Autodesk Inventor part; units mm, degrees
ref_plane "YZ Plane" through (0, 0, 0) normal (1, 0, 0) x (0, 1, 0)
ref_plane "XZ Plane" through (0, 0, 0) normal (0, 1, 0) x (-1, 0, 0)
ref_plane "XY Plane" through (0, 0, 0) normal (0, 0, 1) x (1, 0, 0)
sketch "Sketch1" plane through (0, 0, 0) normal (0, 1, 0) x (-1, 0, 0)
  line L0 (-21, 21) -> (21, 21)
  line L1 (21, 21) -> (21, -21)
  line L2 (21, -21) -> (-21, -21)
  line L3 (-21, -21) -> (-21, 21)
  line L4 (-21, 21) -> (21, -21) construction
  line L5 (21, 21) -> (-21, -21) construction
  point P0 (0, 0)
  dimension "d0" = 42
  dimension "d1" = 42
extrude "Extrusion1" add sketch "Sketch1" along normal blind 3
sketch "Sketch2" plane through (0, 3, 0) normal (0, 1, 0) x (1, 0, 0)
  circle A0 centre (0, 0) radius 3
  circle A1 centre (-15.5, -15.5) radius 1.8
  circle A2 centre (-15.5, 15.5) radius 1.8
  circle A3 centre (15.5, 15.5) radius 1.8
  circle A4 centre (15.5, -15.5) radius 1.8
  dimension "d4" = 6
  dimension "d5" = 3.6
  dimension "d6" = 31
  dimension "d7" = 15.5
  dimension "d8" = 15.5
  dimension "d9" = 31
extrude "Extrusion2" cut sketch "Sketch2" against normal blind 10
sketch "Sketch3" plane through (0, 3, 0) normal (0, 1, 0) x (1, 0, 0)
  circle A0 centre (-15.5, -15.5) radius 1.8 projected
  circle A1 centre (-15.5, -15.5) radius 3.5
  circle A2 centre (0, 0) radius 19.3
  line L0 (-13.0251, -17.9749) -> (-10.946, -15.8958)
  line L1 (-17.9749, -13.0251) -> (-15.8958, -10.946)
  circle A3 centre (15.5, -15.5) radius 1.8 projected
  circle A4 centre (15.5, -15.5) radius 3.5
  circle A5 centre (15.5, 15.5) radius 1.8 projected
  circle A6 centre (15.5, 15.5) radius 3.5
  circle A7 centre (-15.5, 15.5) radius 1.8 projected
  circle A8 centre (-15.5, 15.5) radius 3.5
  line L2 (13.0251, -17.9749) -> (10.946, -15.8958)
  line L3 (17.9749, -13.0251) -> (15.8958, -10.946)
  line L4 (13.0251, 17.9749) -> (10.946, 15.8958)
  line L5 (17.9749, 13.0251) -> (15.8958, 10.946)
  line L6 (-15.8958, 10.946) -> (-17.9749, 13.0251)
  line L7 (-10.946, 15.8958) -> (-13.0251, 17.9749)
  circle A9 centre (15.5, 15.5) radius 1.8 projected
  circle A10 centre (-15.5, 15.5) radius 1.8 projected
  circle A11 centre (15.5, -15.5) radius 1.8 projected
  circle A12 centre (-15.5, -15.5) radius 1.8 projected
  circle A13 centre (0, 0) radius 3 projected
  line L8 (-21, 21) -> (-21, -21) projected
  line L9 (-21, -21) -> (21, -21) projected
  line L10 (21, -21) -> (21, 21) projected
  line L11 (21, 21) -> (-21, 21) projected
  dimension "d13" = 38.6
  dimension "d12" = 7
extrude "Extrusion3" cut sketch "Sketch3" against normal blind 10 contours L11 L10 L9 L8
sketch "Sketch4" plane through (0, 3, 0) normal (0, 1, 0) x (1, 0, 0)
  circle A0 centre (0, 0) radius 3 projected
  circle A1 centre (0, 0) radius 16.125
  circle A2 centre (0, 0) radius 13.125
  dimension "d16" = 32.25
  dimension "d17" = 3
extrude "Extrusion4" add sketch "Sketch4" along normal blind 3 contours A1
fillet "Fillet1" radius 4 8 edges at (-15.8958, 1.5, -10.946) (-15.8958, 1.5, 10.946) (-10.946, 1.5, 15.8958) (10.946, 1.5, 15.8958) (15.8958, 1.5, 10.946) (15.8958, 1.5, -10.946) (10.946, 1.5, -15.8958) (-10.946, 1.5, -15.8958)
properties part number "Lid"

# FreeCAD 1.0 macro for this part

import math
import FreeCAD as App
import Part
import Sketcher

V = App.Vector
Q = App.Units.Quantity


def edges_at(feature, points):
    """Names of the edges that pass closest to the given points."""
    edges = feature.Shape.Edges
    near = lambda p: min(range(len(edges)), key=lambda i: edges[i].distToShape(Part.Vertex(*p))[0])
    return sorted({f"Edge{near(p) + 1}" for p in points})


def add_polygon(sketch, points):
    """Adds a closed chain of lines whose ends are joined by coincident constraints."""
    first, n = sketch.GeometryCount, len(points)
    for a, b in zip(points, points[1:] + points[:1]):
        sketch.addGeometry(Part.LineSegment(App.Vector(*a, 0), App.Vector(*b, 0)), False)
    for i in range(n):
        sketch.addConstraint(Sketcher.Constraint("Coincident", first + i, 2, first + (i + 1) % n, 1))

doc = App.newDocument("Part")
body = doc.addObject("PartDesign::Body", "Body")

sketch1 = body.newObject("Sketcher::SketchObject", "Sketch")
sketch1.AttachmentSupport = (doc.getObject("XZ_Plane"), [""])
sketch1.MapMode = "FlatFace"
add_polygon(sketch1, [(-21, 21), (21, 21), (21, -21), (-21, -21)])
sketch1.addConstraint(Sketcher.Constraint("Horizontal", 0))
sketch1.addConstraint(Sketcher.Constraint("Vertical", 1))
sketch1.addConstraint(Sketcher.Constraint("Horizontal", 2))
sketch1.addConstraint(Sketcher.Constraint("Vertical", 3))
sketch1.addConstraint(Sketcher.Constraint("Symmetric", 0, 2, 2, 2, -1, 1))
sketch1.addConstraint(Sketcher.Constraint("Equal", 2, 1))
sketch1.addConstraint(Sketcher.Constraint("DistanceX", 0, 1, 0, 2, Q("42 mm")))
pad1 = body.newObject("PartDesign::Pad", "Pad")
pad1.Profile = sketch1
pad1.Length = 3
pad1.Reversed = True

sketch2 = body.newObject("Sketcher::SketchObject", "Sketch001")
sketch2.AttachmentSupport = (doc.getObject("XZ_Plane"), [""])
sketch2.MapMode = "FlatFace"
sketch2.AttachmentOffset = App.Placement(V(0, 0, -3), App.Rotation())
sketch2.addGeometry(Part.Circle(V(0, 0, 0), V(0, 0, 1), 3), False)
sketch2.addGeometry(Part.Circle(V(-15.5, 15.5, 0), V(0, 0, 1), 1.8), False)
sketch2.addGeometry(Part.Circle(V(-15.5, -15.5, 0), V(0, 0, 1), 1.8), False)
sketch2.addGeometry(Part.Circle(V(15.5, -15.5, 0), V(0, 0, 1), 1.8), False)
sketch2.addGeometry(Part.Circle(V(15.5, 15.5, 0), V(0, 0, 1), 1.8), False)
sketch2.addConstraint(Sketcher.Constraint("Coincident", 0, 3, -1, 1))
sketch2.addConstraint(Sketcher.Constraint("Equal", 1, 2))
sketch2.addConstraint(Sketcher.Constraint("Equal", 2, 3))
sketch2.addConstraint(Sketcher.Constraint("Equal", 3, 4))
sketch2.addConstraint(Sketcher.Constraint("Symmetric", 1, 3, 3, 3, -1, 1))
sketch2.addConstraint(Sketcher.Constraint("Symmetric", 2, 3, 4, 3, -1, 1))
sketch2.addConstraint(Sketcher.Constraint("Symmetric", 2, 3, 3, 3, -2))
sketch2.addConstraint(Sketcher.Constraint("Diameter", 0, Q("6 mm")))
sketch2.addConstraint(Sketcher.Constraint("Diameter", 1, Q("3.6 mm")))
sketch2.addConstraint(Sketcher.Constraint("DistanceY", 2, 3, 1, 3, Q("31 mm")))
sketch2.addConstraint(Sketcher.Constraint("DistanceX", 2, 3, 3, 3, Q("31 mm")))
pocket1 = body.newObject("PartDesign::Pocket", "Pocket")
pocket1.Profile = sketch2
pocket1.Length = 10
pocket1.Reversed = True

sketch3 = body.newObject("Sketcher::SketchObject", "Sketch002")
sketch3.AttachmentSupport = (doc.getObject("XZ_Plane"), [""])
sketch3.MapMode = "FlatFace"
sketch3.AttachmentOffset = App.Placement(V(0, 0, -3), App.Rotation())
add_polygon(sketch3, [(21, -21), (-21, -21), (-21, 21), (21, 21)])
sketch3.addGeometry(Part.ArcOfCircle(Part.Circle(V(-15.5, 15.5, 0), V(0, 0, 1), 3.5), math.radians(45), math.radians(225)), False)
sketch3.addGeometry(Part.LineSegment(V(-18, 13, 0), V(-15.9, 10.9, 0)), False)
sketch3.addGeometry(Part.ArcOfCircle(Part.Circle(V(0, 0, 0), V(0, 0, 1), 19.3), math.radians(145), math.radians(215)), False)
sketch3.addGeometry(Part.LineSegment(V(-15.9, -10.9, 0), V(-18, -13, 0)), False)
sketch3.addGeometry(Part.ArcOfCircle(Part.Circle(V(-15.5, -15.5, 0), V(0, 0, 1), 3.5), math.radians(135), math.radians(315)), False)
sketch3.addGeometry(Part.LineSegment(V(-13, -18, 0), V(-10.9, -15.9, 0)), False)
sketch3.addGeometry(Part.ArcOfCircle(Part.Circle(V(0, 0, 0), V(0, 0, 1), 19.3), math.radians(-125), math.radians(-55)), False)
sketch3.addGeometry(Part.LineSegment(V(10.9, -15.9, 0), V(13, -18, 0)), False)
sketch3.addGeometry(Part.ArcOfCircle(Part.Circle(V(15.5, -15.5, 0), V(0, 0, 1), 3.5), math.radians(-135), math.radians(45)), False)
sketch3.addGeometry(Part.LineSegment(V(18, -13, 0), V(15.9, -10.9, 0)), False)
sketch3.addGeometry(Part.ArcOfCircle(Part.Circle(V(0, 0, 0), V(0, 0, 1), 19.3), math.radians(-35), math.radians(35)), False)
sketch3.addGeometry(Part.LineSegment(V(15.9, 10.9, 0), V(18, 13, 0)), False)
sketch3.addGeometry(Part.ArcOfCircle(Part.Circle(V(15.5, 15.5, 0), V(0, 0, 1), 3.5), math.radians(-45), math.radians(135)), False)
sketch3.addGeometry(Part.LineSegment(V(13, 18, 0), V(10.9, 15.9, 0)), False)
sketch3.addGeometry(Part.ArcOfCircle(Part.Circle(V(0, 0, 0), V(0, 0, 1), 19.3), math.radians(55), math.radians(125)), False)
sketch3.addGeometry(Part.LineSegment(V(-10.9, 15.9, 0), V(-13, 18, 0)), False)
sketch3.addConstraint(Sketcher.Constraint("Tangent", 4, 2, 5, 1))
sketch3.addConstraint(Sketcher.Constraint("Coincident", 5, 2, 6, 1))
sketch3.addConstraint(Sketcher.Constraint("Coincident", 6, 2, 7, 1))
sketch3.addConstraint(Sketcher.Constraint("Tangent", 7, 2, 8, 1))
sketch3.addConstraint(Sketcher.Constraint("Tangent", 8, 2, 9, 1))
sketch3.addConstraint(Sketcher.Constraint("Coincident", 9, 2, 10, 1))
sketch3.addConstraint(Sketcher.Constraint("Coincident", 10, 2, 11, 1))
sketch3.addConstraint(Sketcher.Constraint("Tangent", 11, 2, 12, 1))
sketch3.addConstraint(Sketcher.Constraint("Tangent", 12, 2, 13, 1))
sketch3.addConstraint(Sketcher.Constraint("Coincident", 13, 2, 14, 1))
sketch3.addConstraint(Sketcher.Constraint("Coincident", 14, 2, 15, 1))
sketch3.addConstraint(Sketcher.Constraint("Tangent", 15, 2, 16, 1))
sketch3.addConstraint(Sketcher.Constraint("Tangent", 16, 2, 17, 1))
sketch3.addConstraint(Sketcher.Constraint("Coincident", 17, 2, 18, 1))
sketch3.addConstraint(Sketcher.Constraint("Coincident", 18, 2, 19, 1))
sketch3.addConstraint(Sketcher.Constraint("Tangent", 19, 2, 4, 1))
sketch3.addConstraint(Sketcher.Constraint("Horizontal", 0))
sketch3.addConstraint(Sketcher.Constraint("Vertical", 1))
sketch3.addConstraint(Sketcher.Constraint("Horizontal", 2))
sketch3.addConstraint(Sketcher.Constraint("Vertical", 3))
sketch3.addConstraint(Sketcher.Constraint("Coincident", 6, 3, -1, 1))
sketch3.addConstraint(Sketcher.Constraint("Coincident", 10, 3, -1, 1))
sketch3.addConstraint(Sketcher.Constraint("Coincident", 14, 3, -1, 1))
sketch3.addConstraint(Sketcher.Constraint("Coincident", 18, 3, -1, 1))
sketch3.addConstraint(Sketcher.Constraint("Equal", 4, 8))
sketch3.addConstraint(Sketcher.Constraint("Equal", 6, 10))
sketch3.addConstraint(Sketcher.Constraint("Equal", 8, 12))
sketch3.addConstraint(Sketcher.Constraint("Equal", 10, 14))
sketch3.addConstraint(Sketcher.Constraint("Equal", 12, 16))
sketch3.addConstraint(Sketcher.Constraint("Equal", 14, 18))
sketch3.addConstraint(Sketcher.Constraint("Symmetric", 4, 3, 12, 3, -1, 1))
sketch3.addConstraint(Sketcher.Constraint("Symmetric", 8, 3, 16, 3, -1, 1))
sketch3.addConstraint(Sketcher.Constraint("Symmetric", 0, 2, 2, 2, -1, 1))
sketch3.addConstraint(Sketcher.Constraint("Symmetric", 8, 3, 12, 3, -2))
sketch3.addConstraint(Sketcher.Constraint("Perpendicular", 5, 7))
sketch3.addConstraint(Sketcher.Constraint("Parallel", 7, 9))
sketch3.addConstraint(Sketcher.Constraint("Perpendicular", 9, 11))
sketch3.addConstraint(Sketcher.Constraint("Parallel", 11, 13))
sketch3.addConstraint(Sketcher.Constraint("Perpendicular", 13, 15))
sketch3.addConstraint(Sketcher.Constraint("Parallel", 15, 17))
sketch3.addConstraint(Sketcher.Constraint("Perpendicular", 17, 19))
sketch3.addConstraint(Sketcher.Constraint("Horizontal", 9, 2, 10, 2))
sketch3.addConstraint(Sketcher.Constraint("Equal", 2, 1))
sketch3.addConstraint(Sketcher.Constraint("Equal", 7, 9))
sketch3.addConstraint(Sketcher.Constraint("Radius", 4, Q("3.5 mm")))
sketch3.addConstraint(Sketcher.Constraint("Radius", 6, Q("19.3 mm")))
sketch3.addConstraint(Sketcher.Constraint("DistanceX", 0, 2, 0, 1, Q("42 mm")))
sketch3.addConstraint(Sketcher.Constraint("DistanceY", 8, 3, 4, 3, Q("31 mm")))
pocket2 = body.newObject("PartDesign::Pocket", "Pocket001")
pocket2.Profile = sketch3
pocket2.Length = 10
pocket2.Reversed = True

sketch4 = body.newObject("Sketcher::SketchObject", "Sketch003")
sketch4.AttachmentSupport = (doc.getObject("XZ_Plane"), [""])
sketch4.MapMode = "FlatFace"
sketch4.AttachmentOffset = App.Placement(V(0, 0, -3), App.Rotation())
sketch4.addGeometry(Part.Circle(V(0, 0, 0), V(0, 0, 1), 16), False)
sketch4.addGeometry(Part.Circle(V(0, 0, 0), V(0, 0, 1), 13), False)
sketch4.addConstraint(Sketcher.Constraint("Coincident", 0, 3, -1, 1))
sketch4.addConstraint(Sketcher.Constraint("Coincident", 1, 3, -1, 1))
sketch4.addConstraint(Sketcher.Constraint("Diameter", 0, Q("32.25 mm")))
sketch4.addConstraint(Sketcher.Constraint("Diameter", 1, Q("26.25 mm")))
pad2 = body.newObject("PartDesign::Pad", "Pad001")
pad2.Profile = sketch4
pad2.Length = 3
pad2.Reversed = True
doc.recompute()

fillet = body.newObject("PartDesign::Fillet", "Fillet")
fillet.Base = (pad2, edges_at(pad2, [
    (-15.896, 1.5, -10.946),
    (-15.896, 1.5, 10.946),
    (-10.946, 1.5, 15.896),
    (10.946, 1.5, 15.896),
    (15.896, 1.5, 10.946),
    (15.896, 1.5, -10.946),
    (10.946, 1.5, -15.896),
    (-10.946, 1.5, -15.896),
]))
fillet.Radius = 4

doc.recompute()
